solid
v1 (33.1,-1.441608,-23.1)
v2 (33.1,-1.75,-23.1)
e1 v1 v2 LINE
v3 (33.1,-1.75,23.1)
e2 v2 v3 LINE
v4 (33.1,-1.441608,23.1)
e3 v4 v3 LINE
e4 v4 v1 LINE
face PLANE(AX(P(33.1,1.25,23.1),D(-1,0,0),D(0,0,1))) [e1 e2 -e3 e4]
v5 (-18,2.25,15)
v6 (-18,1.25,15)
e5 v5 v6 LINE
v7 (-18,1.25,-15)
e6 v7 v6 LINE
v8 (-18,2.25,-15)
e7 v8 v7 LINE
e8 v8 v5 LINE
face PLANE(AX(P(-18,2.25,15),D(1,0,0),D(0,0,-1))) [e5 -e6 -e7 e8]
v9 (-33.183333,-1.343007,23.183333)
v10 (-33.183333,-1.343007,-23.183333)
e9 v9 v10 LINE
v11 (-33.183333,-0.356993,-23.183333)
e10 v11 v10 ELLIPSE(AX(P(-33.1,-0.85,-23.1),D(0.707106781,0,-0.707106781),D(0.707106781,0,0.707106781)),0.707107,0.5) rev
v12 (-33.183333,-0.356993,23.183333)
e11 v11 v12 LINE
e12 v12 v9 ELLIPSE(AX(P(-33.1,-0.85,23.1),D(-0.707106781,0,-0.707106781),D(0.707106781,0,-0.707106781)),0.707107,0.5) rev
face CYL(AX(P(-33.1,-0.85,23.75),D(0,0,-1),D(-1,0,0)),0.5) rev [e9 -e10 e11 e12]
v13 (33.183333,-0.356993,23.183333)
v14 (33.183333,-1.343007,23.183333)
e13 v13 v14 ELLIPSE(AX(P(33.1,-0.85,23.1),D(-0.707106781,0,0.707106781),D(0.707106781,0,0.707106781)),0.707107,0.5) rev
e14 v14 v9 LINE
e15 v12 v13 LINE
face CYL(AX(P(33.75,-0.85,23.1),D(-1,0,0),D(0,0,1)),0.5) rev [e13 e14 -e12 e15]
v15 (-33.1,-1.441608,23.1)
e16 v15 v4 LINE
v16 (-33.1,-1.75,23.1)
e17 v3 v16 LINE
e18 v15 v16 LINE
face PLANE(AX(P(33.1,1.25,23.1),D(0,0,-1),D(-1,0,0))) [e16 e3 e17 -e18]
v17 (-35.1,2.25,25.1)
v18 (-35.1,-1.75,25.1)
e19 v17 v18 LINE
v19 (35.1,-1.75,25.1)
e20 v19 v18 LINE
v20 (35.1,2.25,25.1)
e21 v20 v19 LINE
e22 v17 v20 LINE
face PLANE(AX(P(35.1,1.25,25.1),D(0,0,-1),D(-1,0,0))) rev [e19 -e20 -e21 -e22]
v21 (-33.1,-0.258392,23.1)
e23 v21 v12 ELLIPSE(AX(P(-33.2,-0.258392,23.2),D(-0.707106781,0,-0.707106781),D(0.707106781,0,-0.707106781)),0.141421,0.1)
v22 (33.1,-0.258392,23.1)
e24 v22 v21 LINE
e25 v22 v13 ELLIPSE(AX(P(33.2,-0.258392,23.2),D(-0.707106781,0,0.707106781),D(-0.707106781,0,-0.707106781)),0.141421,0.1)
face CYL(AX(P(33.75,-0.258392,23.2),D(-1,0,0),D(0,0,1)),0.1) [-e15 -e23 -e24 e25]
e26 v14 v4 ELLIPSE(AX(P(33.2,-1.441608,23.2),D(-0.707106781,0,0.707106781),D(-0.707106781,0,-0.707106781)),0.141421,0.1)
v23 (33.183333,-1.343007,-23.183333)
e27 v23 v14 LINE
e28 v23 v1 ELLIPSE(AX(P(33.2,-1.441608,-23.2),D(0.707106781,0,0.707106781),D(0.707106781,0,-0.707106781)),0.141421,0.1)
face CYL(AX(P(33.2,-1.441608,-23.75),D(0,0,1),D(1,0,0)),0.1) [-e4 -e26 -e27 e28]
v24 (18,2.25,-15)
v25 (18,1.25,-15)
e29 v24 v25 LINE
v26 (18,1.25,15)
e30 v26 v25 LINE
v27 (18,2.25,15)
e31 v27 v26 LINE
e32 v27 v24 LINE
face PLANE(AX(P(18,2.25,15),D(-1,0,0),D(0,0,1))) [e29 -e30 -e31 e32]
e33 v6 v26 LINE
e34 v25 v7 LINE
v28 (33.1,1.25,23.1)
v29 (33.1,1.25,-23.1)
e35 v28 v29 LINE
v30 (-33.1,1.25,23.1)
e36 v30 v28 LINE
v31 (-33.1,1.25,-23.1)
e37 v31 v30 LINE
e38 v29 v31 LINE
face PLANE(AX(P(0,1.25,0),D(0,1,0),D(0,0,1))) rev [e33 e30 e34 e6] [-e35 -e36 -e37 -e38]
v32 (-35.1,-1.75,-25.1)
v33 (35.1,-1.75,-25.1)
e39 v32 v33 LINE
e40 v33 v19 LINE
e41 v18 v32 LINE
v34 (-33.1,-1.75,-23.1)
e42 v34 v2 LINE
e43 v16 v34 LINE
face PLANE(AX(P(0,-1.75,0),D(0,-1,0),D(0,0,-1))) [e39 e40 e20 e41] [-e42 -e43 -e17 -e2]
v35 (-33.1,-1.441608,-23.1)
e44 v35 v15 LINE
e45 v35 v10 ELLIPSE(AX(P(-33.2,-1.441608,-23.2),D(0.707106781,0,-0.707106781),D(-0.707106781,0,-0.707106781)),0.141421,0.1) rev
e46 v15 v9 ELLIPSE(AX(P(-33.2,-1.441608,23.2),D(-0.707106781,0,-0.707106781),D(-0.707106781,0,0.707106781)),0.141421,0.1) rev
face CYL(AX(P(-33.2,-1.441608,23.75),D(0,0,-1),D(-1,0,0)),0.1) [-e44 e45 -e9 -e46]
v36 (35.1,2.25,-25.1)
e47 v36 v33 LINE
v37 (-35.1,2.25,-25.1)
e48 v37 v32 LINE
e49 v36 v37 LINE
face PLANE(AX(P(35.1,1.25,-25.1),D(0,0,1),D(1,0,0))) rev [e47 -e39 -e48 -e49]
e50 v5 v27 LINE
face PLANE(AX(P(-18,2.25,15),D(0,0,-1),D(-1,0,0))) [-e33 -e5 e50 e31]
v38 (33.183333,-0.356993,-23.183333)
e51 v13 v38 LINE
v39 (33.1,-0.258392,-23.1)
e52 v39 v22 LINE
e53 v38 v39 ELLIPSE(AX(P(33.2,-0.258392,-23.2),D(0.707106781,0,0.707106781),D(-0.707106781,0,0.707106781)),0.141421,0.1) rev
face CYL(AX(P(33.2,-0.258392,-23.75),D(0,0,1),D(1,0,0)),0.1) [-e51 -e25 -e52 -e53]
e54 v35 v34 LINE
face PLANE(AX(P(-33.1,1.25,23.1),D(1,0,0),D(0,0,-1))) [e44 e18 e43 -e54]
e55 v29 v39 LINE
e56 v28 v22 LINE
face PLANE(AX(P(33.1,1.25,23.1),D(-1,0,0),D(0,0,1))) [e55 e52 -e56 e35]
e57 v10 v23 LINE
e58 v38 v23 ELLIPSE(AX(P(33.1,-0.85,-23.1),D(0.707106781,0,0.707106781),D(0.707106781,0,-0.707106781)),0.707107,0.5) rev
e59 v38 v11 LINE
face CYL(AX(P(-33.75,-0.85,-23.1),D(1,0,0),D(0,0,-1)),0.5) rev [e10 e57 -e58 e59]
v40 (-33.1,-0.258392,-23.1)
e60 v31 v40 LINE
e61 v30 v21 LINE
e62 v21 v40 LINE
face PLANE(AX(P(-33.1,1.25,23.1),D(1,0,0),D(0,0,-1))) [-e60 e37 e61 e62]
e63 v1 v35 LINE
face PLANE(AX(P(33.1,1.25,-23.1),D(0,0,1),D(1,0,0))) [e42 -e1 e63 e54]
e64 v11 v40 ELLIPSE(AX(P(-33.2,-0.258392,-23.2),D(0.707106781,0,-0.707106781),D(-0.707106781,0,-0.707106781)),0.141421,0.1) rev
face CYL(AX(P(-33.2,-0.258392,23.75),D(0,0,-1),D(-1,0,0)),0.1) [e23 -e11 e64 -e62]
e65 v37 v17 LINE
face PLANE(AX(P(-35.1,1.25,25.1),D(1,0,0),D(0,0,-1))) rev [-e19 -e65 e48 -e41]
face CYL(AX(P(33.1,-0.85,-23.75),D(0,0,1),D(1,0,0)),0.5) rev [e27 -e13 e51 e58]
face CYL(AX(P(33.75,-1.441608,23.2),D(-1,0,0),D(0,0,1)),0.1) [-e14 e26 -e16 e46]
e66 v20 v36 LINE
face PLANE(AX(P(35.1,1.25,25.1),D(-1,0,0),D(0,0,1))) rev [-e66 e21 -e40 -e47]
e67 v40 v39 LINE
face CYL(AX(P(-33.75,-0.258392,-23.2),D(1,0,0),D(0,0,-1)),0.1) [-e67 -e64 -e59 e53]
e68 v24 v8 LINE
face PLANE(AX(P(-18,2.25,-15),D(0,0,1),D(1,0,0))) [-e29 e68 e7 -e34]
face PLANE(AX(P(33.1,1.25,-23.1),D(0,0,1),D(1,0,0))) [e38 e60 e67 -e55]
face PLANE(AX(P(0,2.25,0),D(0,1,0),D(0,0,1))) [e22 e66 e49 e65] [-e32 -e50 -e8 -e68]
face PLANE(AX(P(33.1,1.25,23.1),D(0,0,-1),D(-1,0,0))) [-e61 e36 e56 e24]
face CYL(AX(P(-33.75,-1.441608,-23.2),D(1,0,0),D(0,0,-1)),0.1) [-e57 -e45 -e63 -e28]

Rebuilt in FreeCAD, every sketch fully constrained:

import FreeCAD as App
import Part
import Sketcher

V = App.Vector


def edges_at(feature, points):
    """Names of the edges that pass closest to the given points."""
    edges = feature.Shape.Edges
    near = lambda p: min(range(len(edges)), key=lambda i: edges[i].distToShape(Part.Vertex(*p))[0])
    return sorted({f"Edge{near(p) + 1}" for p in points})

doc = App.newDocument("Part")
body = doc.addObject("PartDesign::Body", "Body")

# Sketch on XZ plane
sketch1 = doc.addObject("Sketcher::SketchObject", "Sketch")
body.addObject(sketch1)
sketch1.AttachmentSupport = (doc.XZ_Plane, [""])
sketch1.MapMode = "FlatFace"
sketch1.addGeometry([
    Part.LineSegment(V(-35.1, -25.1, 0), V(-35.1, 25.1, 0)),  # 0
    Part.LineSegment(V(-35.1, 25.1, 0), V(35.1, 25.1, 0)),  # 1
    Part.LineSegment(V(35.1, 25.1, 0), V(35.1, -25.1, 0)),  # 2
    Part.LineSegment(V(35.1, -25.1, 0), V(-35.1, -25.1, 0)),  # 3
    Part.LineSegment(V(33.1, 23.1, 0), V(-33.1, 23.1, 0)),  # 4
    Part.LineSegment(V(-33.1, 23.1, 0), V(-33.1, -23.1, 0)),  # 5
    Part.LineSegment(V(-33.1, -23.1, 0), V(33.1, -23.1, 0)),  # 6
    Part.LineSegment(V(33.1, -23.1, 0), V(33.1, 23.1, 0)),  # 7
], False)
sketch1.addConstraint([
    Sketcher.Constraint("Coincident", 0, 2, 1, 1),
    Sketcher.Constraint("Coincident", 1, 2, 2, 1),
    Sketcher.Constraint("Coincident", 2, 2, 3, 1),
    Sketcher.Constraint("Coincident", 3, 2, 0, 1),
    Sketcher.Constraint("Coincident", 4, 2, 5, 1),
    Sketcher.Constraint("Coincident", 5, 2, 6, 1),
    Sketcher.Constraint("Coincident", 6, 2, 7, 1),
    Sketcher.Constraint("Coincident", 7, 2, 4, 1),
    Sketcher.Constraint("Vertical", 0),
    Sketcher.Constraint("Horizontal", 1),
    Sketcher.Constraint("Vertical", 2),
    Sketcher.Constraint("Horizontal", 3),
    Sketcher.Constraint("Horizontal", 4),
    Sketcher.Constraint("Vertical", 5),
    Sketcher.Constraint("Horizontal", 6),
    Sketcher.Constraint("Vertical", 7),
    Sketcher.Constraint("Symmetric", 0, 2, 2, 2, -1, 1),
    Sketcher.Constraint("Symmetric", 4, 2, 6, 2, -1, 1),
    Sketcher.Constraint("DistanceX", 1, 1, 1, 2, 70.2),
    Sketcher.Constraint("DistanceX", 4, 2, 4, 1, 66.2),
    Sketcher.Constraint("DistanceY", 0, 1, 0, 2, 50.2),
    Sketcher.Constraint("DistanceY", 5, 2, 5, 1, 46.2),
])
pad1 = doc.addObject("PartDesign::Pad", "Pad")
body.addObject(pad1)
pad1.Profile = sketch1
pad1.Length = 1.25
pad1.Reversed = True

# Sketch on XZ plane
sketch2 = doc.addObject("Sketcher::SketchObject", "Sketch001")
body.addObject(sketch2)
sketch2.AttachmentSupport = (doc.XZ_Plane, [""])
sketch2.MapMode = "FlatFace"
sketch2.AttachmentOffset = App.Placement(V(0, 0, -1.25), App.Rotation())
sketch2.addGeometry([
    Part.LineSegment(V(-35.1, -25.1, 0), V(-35.1, 25.1, 0)),  # 0
    Part.LineSegment(V(-35.1, 25.1, 0), V(35.1, 25.1, 0)),  # 1
    Part.LineSegment(V(35.1, 25.1, 0), V(35.1, -25.1, 0)),  # 2
    Part.LineSegment(V(35.1, -25.1, 0), V(-35.1, -25.1, 0)),  # 3
    Part.LineSegment(V(18, 15, 0), V(-18, 15, 0)),  # 4
    Part.LineSegment(V(-18, 15, 0), V(-18, -15, 0)),  # 5
    Part.LineSegment(V(-18, -15, 0), V(18, -15, 0)),  # 6
    Part.LineSegment(V(18, -15, 0), V(18, 15, 0)),  # 7
], False)
sketch2.addConstraint([
    Sketcher.Constraint("Coincident", 0, 2, 1, 1),
    Sketcher.Constraint("Coincident", 1, 2, 2, 1),
    Sketcher.Constraint("Coincident", 2, 2, 3, 1),
    Sketcher.Constraint("Coincident", 3, 2, 0, 1),
    Sketcher.Constraint("Coincident", 4, 2, 5, 1),
    Sketcher.Constraint("Coincident", 5, 2, 6, 1),
    Sketcher.Constraint("Coincident", 6, 2, 7, 1),
    Sketcher.Constraint("Coincident", 7, 2, 4, 1),
    Sketcher.Constraint("Vertical", 0),
    Sketcher.Constraint("Horizontal", 1),
    Sketcher.Constraint("Vertical", 2),
    Sketcher.Constraint("Horizontal", 3),
    Sketcher.Constraint("Horizontal", 4),
    Sketcher.Constraint("Vertical", 5),
    Sketcher.Constraint("Horizontal", 6),
    Sketcher.Constraint("Vertical", 7),
    Sketcher.Constraint("Symmetric", 0, 2, 2, 2, -1, 1),
    Sketcher.Constraint("Symmetric", 4, 2, 6, 2, -1, 1),
    Sketcher.Constraint("DistanceX", 4, 2, 4, 1, 36.0),
    Sketcher.Constraint("DistanceY", 5, 2, 5, 1, 30.0),
    Sketcher.Constraint("DistanceX", 1, 1, 1, 2, 70.2),
    Sketcher.Constraint("DistanceY", 0, 1, 0, 2, 50.2),
])
pad2 = doc.addObject("PartDesign::Pad", "Pad001")
body.addObject(pad2)
pad2.Profile = sketch2
pad2.Length = 1
pad2.Reversed = True

# Sketch on XZ plane
sketch3 = doc.addObject("Sketcher::SketchObject", "Sketch002")
body.addObject(sketch3)
sketch3.AttachmentSupport = (doc.XZ_Plane, [""])
sketch3.MapMode = "FlatFace"
sketch3.addGeometry([
    Part.LineSegment(V(-35.1, 25.1, 0), V(-35.1, -25.1, 0)),  # 0
    Part.LineSegment(V(-35.1, -25.1, 0), V(35.1, -25.1, 0)),  # 1
    Part.LineSegment(V(35.1, -25.1, 0), V(35.1, 25.1, 0)),  # 2
    Part.LineSegment(V(35.1, 25.1, 0), V(-35.1, 25.1, 0)),  # 3
    Part.LineSegment(V(33.1, -23.1, 0), V(-33.1, -23.1, 0)),  # 4
    Part.LineSegment(V(-33.1, -23.1, 0), V(-33.1, 23.1, 0)),  # 5
    Part.LineSegment(V(-33.1, 23.1, 0), V(33.1, 23.1, 0)),  # 6
    Part.LineSegment(V(33.1, 23.1, 0), V(33.1, -23.1, 0)),  # 7
], False)
sketch3.addConstraint([
    Sketcher.Constraint("Coincident", 0, 2, 1, 1),
    Sketcher.Constraint("Coincident", 1, 2, 2, 1),
    Sketcher.Constraint("Coincident", 2, 2, 3, 1),
    Sketcher.Constraint("Coincident", 3, 2, 0, 1),
    Sketcher.Constraint("Coincident", 4, 2, 5, 1),
    Sketcher.Constraint("Coincident", 5, 2, 6, 1),
    Sketcher.Constraint("Coincident", 6, 2, 7, 1),
    Sketcher.Constraint("Coincident", 7, 2, 4, 1),
    Sketcher.Constraint("Vertical", 0),
    Sketcher.Constraint("Horizontal", 1),
    Sketcher.Constraint("Vertical", 2),
    Sketcher.Constraint("Horizontal", 3),
    Sketcher.Constraint("Horizontal", 4),
    Sketcher.Constraint("Vertical", 5),
    Sketcher.Constraint("Horizontal", 6),
    Sketcher.Constraint("Vertical", 7),
    Sketcher.Constraint("Symmetric", 0, 2, 2, 2, -1, 1),
    Sketcher.Constraint("Symmetric", 4, 2, 6, 2, -1, 1),
    Sketcher.Constraint("DistanceX", 1, 1, 1, 2, 70.2),
    Sketcher.Constraint("DistanceX", 4, 2, 4, 1, 66.2),
    Sketcher.Constraint("DistanceY", 0, 2, 0, 1, 50.2),
    Sketcher.Constraint("DistanceY", 5, 1, 5, 2, 46.2),
])
pad3 = doc.addObject("PartDesign::Pad", "Pad002")
body.addObject(pad3)
pad3.Profile = sketch3
pad3.Length = 1.75

# Sketch on YZ plane
sketch4 = doc.addObject("Sketcher::SketchObject", "Sketch003")
body.addObject(sketch4)
sketch4.AttachmentSupport = (doc.YZ_Plane, [""])
sketch4.MapMode = "FlatFace"
sketch4.AttachmentOffset = App.Placement(V(0, 0, 33.1), App.Rotation())
sketch4.addGeometry(Part.Circle(V(-0.85, -23.1, 0), V(0, 0, 1), 0.5), False)
sketch4.addConstraint([
    Sketcher.Constraint("Diameter", 0, 1.0),
    Sketcher.Constraint("DistanceY", 0, 3, -1, 1, 23.1),
    Sketcher.Constraint("DistanceX", 0, 3, -1, 1, 0.85),
])

# Sketch on XZ plane
sketch5 = doc.addObject("Sketcher::SketchObject", "Sketch004")
body.addObject(sketch5)
sketch5.AttachmentSupport = (doc.XZ_Plane, [""])
sketch5.MapMode = "FlatFace"
sketch5.AttachmentOffset = App.Placement(V(0, 0, 0.85), App.Rotation())
sketch5.addGeometry([
    Part.LineSegment(V(33.1, -23.1, 0), V(-33.1, -23.1, 0)),
    Part.LineSegment(V(-33.1, -23.1, 0), V(-33.1, 23.1, 0)),
    Part.LineSegment(V(-33.1, 23.1, 0), V(33.1, 23.1, 0)),
    Part.LineSegment(V(33.1, 23.1, 0), V(33.1, -23.1, 0)),
], False)
sketch5.addConstraint([
    Sketcher.Constraint("Coincident", 0, 2, 1, 1),
    Sketcher.Constraint("Coincident", 1, 2, 2, 1),
    Sketcher.Constraint("Coincident", 2, 2, 3, 1),
    Sketcher.Constraint("Coincident", 3, 2, 0, 1),
    Sketcher.Constraint("Horizontal", 0),
    Sketcher.Constraint("Vertical", 1),
    Sketcher.Constraint("Horizontal", 2),
    Sketcher.Constraint("Vertical", 3),
    Sketcher.Constraint("Symmetric", 0, 2, 2, 2, -1, 1),
    Sketcher.Constraint("DistanceX", 0, 2, 0, 1, 66.2),
    Sketcher.Constraint("DistanceY", 1, 1, 1, 2, 46.2),
])
doc.recompute()

subtractivepipe = doc.addObject("PartDesign::SubtractivePipe", "SubtractivePipe")
body.addObject(subtractivepipe)
subtractivepipe.Profile = sketch4
subtractivepipe.Spine = (sketch5, ["Edge1", "Edge2", "Edge3", "Edge4"])
subtractivepipe.Transition = "Right corner"
doc.recompute()

fillet = doc.addObject("PartDesign::Fillet", "Fillet")
body.addObject(fillet)
fillet.Base = (subtractivepipe, edges_at(subtractivepipe, [
    (0, -0.35, -23.1),
    (0, -1.35, -23.1),
    (0, -1.35, 23.1),
    (0, -0.35, 23.1),
    (-33.1, -1.35, 0),
    (-33.1, -0.35, 0),
    (33.1, -1.35, 0),
    (33.1, -0.35, 0),
]))
fillet.Radius = 0.1

doc.recompute()
